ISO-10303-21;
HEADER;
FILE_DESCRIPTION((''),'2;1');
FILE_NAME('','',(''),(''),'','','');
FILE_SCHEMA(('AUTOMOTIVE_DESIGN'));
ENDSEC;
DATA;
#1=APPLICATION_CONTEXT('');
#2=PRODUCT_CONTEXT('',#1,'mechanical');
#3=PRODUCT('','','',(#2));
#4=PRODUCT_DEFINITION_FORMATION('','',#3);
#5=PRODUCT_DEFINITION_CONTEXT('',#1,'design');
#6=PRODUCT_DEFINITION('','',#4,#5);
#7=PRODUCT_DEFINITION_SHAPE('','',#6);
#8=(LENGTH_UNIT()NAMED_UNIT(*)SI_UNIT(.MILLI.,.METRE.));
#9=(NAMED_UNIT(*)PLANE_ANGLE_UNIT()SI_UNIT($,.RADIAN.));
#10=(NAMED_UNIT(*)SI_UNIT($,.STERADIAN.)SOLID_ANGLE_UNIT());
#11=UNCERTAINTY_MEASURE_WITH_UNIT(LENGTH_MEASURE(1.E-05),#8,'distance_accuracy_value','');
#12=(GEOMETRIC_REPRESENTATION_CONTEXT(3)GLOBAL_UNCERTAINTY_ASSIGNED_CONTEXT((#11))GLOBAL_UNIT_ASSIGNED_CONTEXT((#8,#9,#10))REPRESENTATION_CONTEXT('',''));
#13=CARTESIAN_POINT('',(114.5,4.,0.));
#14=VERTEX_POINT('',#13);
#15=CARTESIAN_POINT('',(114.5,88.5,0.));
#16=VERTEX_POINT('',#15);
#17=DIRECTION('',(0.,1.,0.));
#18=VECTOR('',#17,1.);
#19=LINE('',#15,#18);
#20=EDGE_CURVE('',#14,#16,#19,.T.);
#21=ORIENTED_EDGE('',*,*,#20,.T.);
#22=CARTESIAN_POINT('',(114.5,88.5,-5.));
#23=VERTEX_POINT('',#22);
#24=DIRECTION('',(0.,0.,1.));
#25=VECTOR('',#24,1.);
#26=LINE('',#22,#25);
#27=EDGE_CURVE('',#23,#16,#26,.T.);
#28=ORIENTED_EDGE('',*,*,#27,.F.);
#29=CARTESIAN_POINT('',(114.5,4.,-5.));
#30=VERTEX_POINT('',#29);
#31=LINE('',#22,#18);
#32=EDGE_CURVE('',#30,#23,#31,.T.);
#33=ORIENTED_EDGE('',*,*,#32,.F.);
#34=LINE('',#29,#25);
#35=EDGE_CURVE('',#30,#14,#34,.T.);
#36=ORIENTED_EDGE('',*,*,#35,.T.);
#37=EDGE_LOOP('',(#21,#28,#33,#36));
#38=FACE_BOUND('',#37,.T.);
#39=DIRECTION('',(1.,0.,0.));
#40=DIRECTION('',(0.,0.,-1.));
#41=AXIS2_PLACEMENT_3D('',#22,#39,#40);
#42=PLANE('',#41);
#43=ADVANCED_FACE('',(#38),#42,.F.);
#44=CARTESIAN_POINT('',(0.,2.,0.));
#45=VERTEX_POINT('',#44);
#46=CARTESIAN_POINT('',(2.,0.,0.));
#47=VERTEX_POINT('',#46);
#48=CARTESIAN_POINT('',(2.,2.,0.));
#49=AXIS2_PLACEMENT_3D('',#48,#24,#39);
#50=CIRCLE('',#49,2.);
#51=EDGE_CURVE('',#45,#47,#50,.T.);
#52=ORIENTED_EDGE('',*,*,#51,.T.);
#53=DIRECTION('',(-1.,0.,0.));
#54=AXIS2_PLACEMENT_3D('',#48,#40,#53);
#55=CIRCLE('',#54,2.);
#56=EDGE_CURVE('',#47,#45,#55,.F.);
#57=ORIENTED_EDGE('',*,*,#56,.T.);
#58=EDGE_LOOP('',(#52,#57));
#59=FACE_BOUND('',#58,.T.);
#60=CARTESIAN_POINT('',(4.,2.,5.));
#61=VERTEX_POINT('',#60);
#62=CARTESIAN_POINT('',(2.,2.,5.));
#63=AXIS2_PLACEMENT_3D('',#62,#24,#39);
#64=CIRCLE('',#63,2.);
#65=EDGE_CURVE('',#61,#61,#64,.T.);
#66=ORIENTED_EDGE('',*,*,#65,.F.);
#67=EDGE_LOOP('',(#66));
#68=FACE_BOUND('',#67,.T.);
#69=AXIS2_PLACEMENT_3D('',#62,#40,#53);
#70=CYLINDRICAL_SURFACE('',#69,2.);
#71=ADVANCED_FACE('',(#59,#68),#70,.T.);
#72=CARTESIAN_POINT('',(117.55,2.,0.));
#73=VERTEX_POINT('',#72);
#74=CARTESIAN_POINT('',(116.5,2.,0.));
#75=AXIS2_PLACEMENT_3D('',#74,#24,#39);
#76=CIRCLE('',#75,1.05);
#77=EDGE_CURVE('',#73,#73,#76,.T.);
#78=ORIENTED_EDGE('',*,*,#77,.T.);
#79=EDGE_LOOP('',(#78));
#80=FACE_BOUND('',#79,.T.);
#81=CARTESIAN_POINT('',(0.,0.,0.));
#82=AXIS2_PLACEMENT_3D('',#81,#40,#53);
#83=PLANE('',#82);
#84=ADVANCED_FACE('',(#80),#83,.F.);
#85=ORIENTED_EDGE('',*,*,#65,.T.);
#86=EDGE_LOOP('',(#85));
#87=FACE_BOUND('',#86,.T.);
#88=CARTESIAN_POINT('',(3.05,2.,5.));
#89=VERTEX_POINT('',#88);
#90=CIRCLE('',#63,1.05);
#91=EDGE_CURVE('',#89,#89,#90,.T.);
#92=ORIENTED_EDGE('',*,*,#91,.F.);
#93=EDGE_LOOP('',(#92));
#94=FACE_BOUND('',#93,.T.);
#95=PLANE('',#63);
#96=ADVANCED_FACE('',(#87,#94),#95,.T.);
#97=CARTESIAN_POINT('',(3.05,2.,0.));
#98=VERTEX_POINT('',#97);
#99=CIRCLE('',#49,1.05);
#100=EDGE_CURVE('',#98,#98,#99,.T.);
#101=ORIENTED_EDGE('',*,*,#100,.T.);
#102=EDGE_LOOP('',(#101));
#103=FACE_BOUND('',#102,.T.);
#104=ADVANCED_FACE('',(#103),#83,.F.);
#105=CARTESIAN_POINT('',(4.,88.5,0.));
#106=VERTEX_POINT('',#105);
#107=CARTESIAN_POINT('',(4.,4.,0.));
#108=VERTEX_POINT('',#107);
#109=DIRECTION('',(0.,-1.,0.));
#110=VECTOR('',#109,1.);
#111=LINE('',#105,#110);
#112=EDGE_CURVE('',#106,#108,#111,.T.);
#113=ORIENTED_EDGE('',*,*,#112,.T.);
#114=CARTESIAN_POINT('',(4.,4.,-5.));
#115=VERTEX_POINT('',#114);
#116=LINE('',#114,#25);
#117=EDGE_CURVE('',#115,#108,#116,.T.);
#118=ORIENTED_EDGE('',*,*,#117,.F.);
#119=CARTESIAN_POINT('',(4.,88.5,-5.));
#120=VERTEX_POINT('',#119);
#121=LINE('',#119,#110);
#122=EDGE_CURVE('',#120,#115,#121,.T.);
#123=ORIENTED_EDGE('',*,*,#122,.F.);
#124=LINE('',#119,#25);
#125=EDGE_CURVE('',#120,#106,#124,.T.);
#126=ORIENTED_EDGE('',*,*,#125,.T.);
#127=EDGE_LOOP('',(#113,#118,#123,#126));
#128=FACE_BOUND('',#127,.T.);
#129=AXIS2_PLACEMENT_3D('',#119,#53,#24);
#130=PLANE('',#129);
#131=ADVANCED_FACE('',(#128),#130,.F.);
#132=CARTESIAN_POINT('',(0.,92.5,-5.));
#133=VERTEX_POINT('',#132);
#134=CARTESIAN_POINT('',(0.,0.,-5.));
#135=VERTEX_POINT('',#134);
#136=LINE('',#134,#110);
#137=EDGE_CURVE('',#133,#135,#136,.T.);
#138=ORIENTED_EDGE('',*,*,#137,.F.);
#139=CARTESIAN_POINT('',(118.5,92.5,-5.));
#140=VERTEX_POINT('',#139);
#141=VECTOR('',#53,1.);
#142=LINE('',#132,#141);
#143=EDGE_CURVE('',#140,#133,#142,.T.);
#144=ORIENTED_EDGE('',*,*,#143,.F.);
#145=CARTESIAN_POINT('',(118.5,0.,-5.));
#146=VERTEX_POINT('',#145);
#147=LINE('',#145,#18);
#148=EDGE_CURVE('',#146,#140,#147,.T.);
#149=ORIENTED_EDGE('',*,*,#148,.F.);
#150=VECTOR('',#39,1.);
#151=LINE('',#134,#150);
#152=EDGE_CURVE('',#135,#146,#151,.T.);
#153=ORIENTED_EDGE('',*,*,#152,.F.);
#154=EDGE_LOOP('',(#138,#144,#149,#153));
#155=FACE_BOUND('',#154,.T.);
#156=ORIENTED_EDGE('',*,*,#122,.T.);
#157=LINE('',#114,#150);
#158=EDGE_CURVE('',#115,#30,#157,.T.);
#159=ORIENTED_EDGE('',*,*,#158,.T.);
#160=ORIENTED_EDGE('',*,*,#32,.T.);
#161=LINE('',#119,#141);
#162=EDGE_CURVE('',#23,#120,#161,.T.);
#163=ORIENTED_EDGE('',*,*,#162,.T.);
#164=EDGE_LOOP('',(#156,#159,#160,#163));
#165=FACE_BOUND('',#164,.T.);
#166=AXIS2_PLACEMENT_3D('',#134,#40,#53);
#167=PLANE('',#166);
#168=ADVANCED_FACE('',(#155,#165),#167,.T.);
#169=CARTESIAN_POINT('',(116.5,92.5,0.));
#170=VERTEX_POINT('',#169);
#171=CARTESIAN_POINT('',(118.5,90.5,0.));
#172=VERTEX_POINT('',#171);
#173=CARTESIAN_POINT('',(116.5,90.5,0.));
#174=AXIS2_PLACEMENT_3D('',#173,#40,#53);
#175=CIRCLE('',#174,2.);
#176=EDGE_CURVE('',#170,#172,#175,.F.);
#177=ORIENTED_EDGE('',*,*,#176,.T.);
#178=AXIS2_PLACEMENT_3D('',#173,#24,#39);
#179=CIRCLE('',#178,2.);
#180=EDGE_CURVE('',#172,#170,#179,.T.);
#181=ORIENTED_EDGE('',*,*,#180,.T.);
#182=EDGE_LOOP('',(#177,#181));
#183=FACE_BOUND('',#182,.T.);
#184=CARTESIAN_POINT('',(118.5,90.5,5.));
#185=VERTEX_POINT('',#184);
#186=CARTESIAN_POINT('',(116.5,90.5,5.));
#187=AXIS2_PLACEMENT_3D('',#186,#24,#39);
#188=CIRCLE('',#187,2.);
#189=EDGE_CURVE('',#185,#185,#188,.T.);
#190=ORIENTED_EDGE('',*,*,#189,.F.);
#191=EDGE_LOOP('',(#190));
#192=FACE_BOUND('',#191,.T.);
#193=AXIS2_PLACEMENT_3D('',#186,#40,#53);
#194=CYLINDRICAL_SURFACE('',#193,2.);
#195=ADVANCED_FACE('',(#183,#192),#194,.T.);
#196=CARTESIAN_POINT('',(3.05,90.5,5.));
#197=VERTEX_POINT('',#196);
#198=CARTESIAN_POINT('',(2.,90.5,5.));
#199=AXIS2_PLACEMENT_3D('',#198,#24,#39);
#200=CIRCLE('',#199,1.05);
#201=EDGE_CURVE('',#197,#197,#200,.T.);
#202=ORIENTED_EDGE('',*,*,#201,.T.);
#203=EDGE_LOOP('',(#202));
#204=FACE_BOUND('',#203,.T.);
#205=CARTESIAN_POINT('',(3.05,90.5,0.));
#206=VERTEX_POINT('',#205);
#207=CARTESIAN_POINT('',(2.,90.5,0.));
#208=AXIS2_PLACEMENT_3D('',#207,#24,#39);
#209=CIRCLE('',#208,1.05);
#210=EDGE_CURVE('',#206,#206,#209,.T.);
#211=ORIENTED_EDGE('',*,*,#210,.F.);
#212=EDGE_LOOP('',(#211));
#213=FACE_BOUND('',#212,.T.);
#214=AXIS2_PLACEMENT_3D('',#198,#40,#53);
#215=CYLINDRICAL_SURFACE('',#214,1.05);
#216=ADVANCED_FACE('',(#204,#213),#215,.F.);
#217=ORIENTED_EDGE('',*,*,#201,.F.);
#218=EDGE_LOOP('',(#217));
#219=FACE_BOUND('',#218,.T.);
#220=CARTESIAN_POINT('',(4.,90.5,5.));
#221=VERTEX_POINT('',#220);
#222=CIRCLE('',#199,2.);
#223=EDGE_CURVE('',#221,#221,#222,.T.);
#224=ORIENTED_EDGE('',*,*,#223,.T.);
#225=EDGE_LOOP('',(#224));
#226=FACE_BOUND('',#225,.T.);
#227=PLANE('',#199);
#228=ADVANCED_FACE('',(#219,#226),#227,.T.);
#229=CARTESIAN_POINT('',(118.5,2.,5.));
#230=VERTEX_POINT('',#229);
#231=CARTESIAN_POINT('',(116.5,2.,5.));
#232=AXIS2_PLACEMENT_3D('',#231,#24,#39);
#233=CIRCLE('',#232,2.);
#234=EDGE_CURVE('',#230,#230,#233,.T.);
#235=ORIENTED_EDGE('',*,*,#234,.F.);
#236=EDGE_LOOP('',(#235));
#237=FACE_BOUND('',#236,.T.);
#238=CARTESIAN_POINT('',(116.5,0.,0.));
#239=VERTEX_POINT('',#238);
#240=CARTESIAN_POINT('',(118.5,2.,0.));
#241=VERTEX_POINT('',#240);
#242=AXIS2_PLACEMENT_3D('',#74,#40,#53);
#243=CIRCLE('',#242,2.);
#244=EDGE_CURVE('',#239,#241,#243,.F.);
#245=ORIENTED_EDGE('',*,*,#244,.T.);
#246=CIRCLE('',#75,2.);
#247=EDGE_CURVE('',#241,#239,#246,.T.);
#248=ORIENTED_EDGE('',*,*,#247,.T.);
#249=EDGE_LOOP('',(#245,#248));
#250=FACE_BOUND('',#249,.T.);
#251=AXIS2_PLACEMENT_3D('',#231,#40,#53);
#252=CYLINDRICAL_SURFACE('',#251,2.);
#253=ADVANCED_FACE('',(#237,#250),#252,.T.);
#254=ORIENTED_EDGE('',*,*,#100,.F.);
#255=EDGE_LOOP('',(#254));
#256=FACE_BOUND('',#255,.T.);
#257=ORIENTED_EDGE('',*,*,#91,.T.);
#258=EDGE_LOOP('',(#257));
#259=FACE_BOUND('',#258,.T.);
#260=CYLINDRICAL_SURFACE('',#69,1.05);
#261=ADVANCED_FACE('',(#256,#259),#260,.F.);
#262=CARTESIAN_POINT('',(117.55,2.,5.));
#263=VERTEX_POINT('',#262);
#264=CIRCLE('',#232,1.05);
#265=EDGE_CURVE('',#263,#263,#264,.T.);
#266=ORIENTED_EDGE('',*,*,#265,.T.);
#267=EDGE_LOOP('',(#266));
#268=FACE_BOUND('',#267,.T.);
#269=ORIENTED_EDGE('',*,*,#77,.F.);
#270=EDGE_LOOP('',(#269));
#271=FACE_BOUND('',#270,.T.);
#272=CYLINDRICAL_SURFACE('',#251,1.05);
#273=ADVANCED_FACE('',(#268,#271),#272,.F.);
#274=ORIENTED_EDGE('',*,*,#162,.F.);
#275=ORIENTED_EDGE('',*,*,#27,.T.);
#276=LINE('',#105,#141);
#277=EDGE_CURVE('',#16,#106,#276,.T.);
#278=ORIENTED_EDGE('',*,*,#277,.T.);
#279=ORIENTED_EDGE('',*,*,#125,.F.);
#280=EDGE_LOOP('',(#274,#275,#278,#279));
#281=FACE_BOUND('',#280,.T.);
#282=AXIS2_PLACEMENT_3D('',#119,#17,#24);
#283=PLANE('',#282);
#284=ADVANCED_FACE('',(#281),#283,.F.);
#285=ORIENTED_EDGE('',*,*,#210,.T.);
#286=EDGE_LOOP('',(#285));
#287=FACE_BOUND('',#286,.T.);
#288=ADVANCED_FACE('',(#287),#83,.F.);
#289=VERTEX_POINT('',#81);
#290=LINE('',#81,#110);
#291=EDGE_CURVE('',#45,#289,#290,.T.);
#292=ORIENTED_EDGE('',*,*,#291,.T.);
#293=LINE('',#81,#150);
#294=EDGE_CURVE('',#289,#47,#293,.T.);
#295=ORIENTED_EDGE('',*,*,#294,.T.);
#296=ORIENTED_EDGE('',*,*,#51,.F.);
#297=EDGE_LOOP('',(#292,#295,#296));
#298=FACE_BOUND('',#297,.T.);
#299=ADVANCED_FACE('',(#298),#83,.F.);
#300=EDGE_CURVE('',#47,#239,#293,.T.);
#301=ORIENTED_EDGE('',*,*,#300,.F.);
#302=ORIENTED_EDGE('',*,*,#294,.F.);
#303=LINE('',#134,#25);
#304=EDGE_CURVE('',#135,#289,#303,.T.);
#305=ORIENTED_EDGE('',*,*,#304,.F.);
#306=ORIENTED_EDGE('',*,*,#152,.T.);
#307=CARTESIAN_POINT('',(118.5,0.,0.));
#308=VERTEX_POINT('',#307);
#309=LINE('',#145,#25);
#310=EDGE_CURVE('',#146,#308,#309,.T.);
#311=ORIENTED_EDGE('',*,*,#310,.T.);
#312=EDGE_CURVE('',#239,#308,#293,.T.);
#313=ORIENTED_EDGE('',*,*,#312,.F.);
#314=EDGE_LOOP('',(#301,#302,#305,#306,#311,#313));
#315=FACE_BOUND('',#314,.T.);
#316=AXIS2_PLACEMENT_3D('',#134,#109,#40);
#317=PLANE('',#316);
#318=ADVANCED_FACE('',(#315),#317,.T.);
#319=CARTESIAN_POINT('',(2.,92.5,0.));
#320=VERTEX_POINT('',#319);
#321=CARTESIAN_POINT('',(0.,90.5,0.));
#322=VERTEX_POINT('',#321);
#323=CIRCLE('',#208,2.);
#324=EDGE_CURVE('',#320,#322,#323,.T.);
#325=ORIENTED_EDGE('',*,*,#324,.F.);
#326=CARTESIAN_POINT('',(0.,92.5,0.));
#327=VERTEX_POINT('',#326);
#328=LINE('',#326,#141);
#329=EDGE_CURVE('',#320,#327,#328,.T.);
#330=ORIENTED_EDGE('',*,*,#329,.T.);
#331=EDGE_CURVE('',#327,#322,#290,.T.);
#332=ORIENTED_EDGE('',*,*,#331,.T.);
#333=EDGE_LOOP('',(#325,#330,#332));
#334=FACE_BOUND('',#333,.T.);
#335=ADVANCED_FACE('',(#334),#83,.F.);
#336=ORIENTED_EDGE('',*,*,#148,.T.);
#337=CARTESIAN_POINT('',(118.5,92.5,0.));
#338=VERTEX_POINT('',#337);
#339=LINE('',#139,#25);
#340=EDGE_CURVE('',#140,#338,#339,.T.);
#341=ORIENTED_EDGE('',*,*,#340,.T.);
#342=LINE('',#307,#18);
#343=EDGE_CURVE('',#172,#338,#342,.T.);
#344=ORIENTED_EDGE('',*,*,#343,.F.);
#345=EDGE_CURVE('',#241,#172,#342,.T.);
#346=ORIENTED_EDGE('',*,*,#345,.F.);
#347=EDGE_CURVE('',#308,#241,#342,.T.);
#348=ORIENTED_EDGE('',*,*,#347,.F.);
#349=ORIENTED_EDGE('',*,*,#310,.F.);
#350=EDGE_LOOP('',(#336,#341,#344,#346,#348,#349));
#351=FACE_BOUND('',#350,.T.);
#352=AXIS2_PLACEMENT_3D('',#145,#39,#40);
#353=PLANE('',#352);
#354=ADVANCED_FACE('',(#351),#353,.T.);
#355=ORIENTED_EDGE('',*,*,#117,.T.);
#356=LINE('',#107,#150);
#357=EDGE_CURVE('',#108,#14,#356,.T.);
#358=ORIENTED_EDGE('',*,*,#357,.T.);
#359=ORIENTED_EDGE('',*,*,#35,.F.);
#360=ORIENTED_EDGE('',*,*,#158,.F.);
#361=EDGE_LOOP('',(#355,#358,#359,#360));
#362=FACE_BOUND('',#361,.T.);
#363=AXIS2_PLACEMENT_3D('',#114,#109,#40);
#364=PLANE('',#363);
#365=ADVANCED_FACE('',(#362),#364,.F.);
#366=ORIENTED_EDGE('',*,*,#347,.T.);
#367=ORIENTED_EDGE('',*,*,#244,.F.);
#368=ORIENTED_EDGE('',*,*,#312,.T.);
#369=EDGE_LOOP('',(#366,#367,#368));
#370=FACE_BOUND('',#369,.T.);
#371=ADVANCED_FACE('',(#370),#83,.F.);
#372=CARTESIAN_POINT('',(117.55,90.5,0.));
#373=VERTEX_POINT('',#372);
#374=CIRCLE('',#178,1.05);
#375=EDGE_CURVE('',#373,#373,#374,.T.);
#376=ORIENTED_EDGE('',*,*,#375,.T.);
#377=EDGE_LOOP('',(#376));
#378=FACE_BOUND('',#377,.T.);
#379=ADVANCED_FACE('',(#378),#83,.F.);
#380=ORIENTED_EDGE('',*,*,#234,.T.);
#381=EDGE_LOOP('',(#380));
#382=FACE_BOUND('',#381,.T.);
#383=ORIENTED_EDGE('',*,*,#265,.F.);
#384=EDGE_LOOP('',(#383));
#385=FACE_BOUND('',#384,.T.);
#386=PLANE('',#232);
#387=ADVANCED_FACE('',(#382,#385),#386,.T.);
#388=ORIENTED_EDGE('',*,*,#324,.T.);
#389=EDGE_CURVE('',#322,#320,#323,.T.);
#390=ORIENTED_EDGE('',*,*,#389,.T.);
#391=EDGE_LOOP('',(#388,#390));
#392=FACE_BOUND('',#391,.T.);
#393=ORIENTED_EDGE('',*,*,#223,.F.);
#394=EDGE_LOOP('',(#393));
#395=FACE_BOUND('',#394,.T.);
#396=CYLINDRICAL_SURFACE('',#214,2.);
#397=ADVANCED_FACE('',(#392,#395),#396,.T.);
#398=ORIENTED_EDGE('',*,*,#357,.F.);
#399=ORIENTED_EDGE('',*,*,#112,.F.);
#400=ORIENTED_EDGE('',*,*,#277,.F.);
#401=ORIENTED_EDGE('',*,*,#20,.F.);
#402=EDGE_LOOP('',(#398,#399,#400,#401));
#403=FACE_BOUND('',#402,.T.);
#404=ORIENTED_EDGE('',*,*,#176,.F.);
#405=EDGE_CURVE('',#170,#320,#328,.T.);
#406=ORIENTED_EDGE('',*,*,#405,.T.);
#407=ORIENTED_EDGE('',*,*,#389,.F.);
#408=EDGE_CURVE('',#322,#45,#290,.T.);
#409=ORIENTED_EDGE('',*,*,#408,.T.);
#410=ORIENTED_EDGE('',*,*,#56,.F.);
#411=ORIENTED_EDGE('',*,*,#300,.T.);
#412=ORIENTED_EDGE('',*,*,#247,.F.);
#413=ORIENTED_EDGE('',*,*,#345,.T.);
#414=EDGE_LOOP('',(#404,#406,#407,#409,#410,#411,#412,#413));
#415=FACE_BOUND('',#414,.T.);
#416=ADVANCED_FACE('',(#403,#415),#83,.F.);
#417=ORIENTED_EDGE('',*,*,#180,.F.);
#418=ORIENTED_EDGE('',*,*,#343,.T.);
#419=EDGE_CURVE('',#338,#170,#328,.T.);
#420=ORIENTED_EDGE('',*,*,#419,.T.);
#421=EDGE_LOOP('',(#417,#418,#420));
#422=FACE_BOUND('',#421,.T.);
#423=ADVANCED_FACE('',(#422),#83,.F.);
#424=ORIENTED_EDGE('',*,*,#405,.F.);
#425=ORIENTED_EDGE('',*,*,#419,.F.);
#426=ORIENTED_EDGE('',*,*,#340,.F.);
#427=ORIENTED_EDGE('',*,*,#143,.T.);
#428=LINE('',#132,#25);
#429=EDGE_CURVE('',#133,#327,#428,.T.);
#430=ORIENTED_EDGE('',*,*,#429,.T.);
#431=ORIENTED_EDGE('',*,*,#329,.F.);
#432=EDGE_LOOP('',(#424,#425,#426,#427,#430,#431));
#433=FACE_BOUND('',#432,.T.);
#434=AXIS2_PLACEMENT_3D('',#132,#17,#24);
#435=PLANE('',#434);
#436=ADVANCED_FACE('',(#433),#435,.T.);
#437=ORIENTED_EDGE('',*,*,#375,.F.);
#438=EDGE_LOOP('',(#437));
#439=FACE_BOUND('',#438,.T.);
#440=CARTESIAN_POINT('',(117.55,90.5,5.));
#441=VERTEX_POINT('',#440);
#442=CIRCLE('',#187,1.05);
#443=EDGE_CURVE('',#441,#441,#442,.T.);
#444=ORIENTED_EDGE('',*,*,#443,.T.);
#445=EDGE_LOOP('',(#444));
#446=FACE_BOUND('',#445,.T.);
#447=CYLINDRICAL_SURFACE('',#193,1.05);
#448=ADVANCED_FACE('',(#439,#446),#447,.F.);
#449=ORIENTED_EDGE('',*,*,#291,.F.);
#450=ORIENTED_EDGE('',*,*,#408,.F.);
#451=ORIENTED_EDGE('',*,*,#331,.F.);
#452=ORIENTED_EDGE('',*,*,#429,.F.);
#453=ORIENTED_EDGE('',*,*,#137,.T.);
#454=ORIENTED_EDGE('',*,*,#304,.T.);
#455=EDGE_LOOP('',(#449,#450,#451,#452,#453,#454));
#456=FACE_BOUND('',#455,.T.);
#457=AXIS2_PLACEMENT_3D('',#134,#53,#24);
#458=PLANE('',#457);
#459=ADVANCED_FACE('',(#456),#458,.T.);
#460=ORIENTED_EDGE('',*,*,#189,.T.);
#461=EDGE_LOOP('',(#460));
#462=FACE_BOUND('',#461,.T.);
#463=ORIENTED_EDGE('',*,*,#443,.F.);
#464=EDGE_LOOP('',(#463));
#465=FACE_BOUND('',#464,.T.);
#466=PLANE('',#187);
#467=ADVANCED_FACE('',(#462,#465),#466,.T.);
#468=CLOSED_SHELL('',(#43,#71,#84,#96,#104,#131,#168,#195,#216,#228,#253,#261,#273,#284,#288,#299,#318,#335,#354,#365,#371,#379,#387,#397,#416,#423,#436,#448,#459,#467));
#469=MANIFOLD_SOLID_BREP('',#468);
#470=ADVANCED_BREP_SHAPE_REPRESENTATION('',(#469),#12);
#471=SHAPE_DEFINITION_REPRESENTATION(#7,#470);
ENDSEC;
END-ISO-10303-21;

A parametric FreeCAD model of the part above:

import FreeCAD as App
import Part
import Sketcher

doc = App.newDocument("Part")
body = doc.addObject("PartDesign::Body", "Body")

sketch1 = doc.addObject("Sketcher::SketchObject", "Sketch")
body.addObject(sketch1)
sketch1.AttachmentSupport = (doc.XY_Plane, [""])
sketch1.MapMode = "FlatFace"
sketch1.addGeometry([
    Part.LineSegment(App.Vector(0, 92, 0), App.Vector(0, 0, 0)),
    Part.LineSegment(App.Vector(0, 0, 0), App.Vector(118, 0, 0)),
    Part.LineSegment(App.Vector(118, 0, 0), App.Vector(118, 92, 0)),
    Part.LineSegment(App.Vector(118, 92, 0), App.Vector(0, 92, 0)),
    Part.LineSegment(App.Vector(114, 4, 0), App.Vector(4, 4, 0)),
    Part.LineSegment(App.Vector(4, 4, 0), App.Vector(4, 88, 0)),
    Part.LineSegment(App.Vector(4, 88, 0), App.Vector(114, 88, 0)),
    Part.LineSegment(App.Vector(114, 88, 0), App.Vector(114, 4, 0)),
], False)
sketch1.addConstraint([
    Sketcher.Constraint("Coincident", 0, 2, 1, 1),
    Sketcher.Constraint("Coincident", 1, 2, 2, 1),
    Sketcher.Constraint("Coincident", 2, 2, 3, 1),
    Sketcher.Constraint("Coincident", 3, 2, 0, 1),
    Sketcher.Constraint("Coincident", 4, 2, 5, 1),
    Sketcher.Constraint("Coincident", 5, 2, 6, 1),
    Sketcher.Constraint("Coincident", 6, 2, 7, 1),
    Sketcher.Constraint("Coincident", 7, 2, 4, 1),
    Sketcher.Constraint("Vertical", 0),
    Sketcher.Constraint("Horizontal", 1),
    Sketcher.Constraint("Vertical", 2),
    Sketcher.Constraint("Horizontal", 3),
    Sketcher.Constraint("Horizontal", 4),
    Sketcher.Constraint("Vertical", 5),
    Sketcher.Constraint("Horizontal", 6),
    Sketcher.Constraint("Vertical", 7),
    Sketcher.Constraint("Coincident", 0, 2, -1, 1),
    Sketcher.Constraint("DistanceX", 1, 1, 1, 2, 118.5),
    Sketcher.Constraint("DistanceX", 4, 2, 4, 1, 110.5),
    Sketcher.Constraint("DistanceY", 0, 2, 0, 1, 92.5),
    Sketcher.Constraint("DistanceY", 5, 1, 5, 2, 84.5),
    Sketcher.Constraint("DistanceX", -1, 1, 4, 2, 4.0),
    Sketcher.Constraint("DistanceY", -1, 1, 4, 2, 4.0),
])
pad1 = doc.addObject("PartDesign::Pad", "Pad")
body.addObject(pad1)
pad1.Profile = sketch1
pad1.Length = 5
pad1.Reversed = True

sketch2 = doc.addObject("Sketcher::SketchObject", "Sketch001")
body.addObject(sketch2)
sketch2.AttachmentSupport = (doc.XY_Plane, [""])
sketch2.MapMode = "FlatFace"
sketch2.addGeometry([
    Part.Circle(App.Vector(2, 90.5, 0), App.Vector(0, 0, 1), 2),
    Part.Circle(App.Vector(2, 90.5, 0), App.Vector(0, 0, 1), 1.1),
    Part.Circle(App.Vector(116.5, 90.5, 0), App.Vector(0, 0, 1), 2),
    Part.Circle(App.Vector(116.5, 90.5, 0), App.Vector(0, 0, 1), 1.1),
    Part.Circle(App.Vector(116.5, 2, 0), App.Vector(0, 0, 1), 2),
    Part.Circle(App.Vector(116.5, 2, 0), App.Vector(0, 0, 1), 1.1),
    Part.Circle(App.Vector(2, 2, 0), App.Vector(0, 0, 1), 2),
    Part.Circle(App.Vector(2, 2, 0), App.Vector(0, 0, 1), 1.1),
], False)
sketch2.addConstraint([
    Sketcher.Constraint("Coincident", 1, 3, 0, 3),
    Sketcher.Constraint("Coincident", 3, 3, 2, 3),
    Sketcher.Constraint("Coincident", 5, 3, 4, 3),
    Sketcher.Constraint("Coincident", 7, 3, 6, 3),
    Sketcher.Constraint("Equal", 0, 2),
    Sketcher.Constraint("Equal", 1, 3),
    Sketcher.Constraint("Equal", 2, 4),
    Sketcher.Constraint("Equal", 3, 5),
    Sketcher.Constraint("Equal", 4, 6),
    Sketcher.Constraint("Equal", 5, 7),
    Sketcher.Constraint("Horizontal", 1, 3, 2, 3),
    Sketcher.Constraint("Horizontal", 5, 3, 6, 3),
    Sketcher.Constraint("Vertical", 3, 3, 4, 3),
    Sketcher.Constraint("Vertical", 1, 3, 6, 3),
    Sketcher.Constraint("Diameter", 0, 4.0),
    Sketcher.Constraint("Diameter", 1, 2.1),
    Sketcher.Constraint("DistanceX", -1, 1, 0, 3, 2.0),
    Sketcher.Constraint("DistanceY", -1, 1, 4, 3, 2.0),
    Sketcher.Constraint("DistanceY", -1, 1, 0, 3, 90.5),
    Sketcher.Constraint("DistanceX", -1, 1, 2, 3, 116.5),
])
pad2 = doc.addObject("PartDesign::Pad", "Pad001")
body.addObject(pad2)
pad2.Profile = sketch2
pad2.Length = 5

doc.recompute()
